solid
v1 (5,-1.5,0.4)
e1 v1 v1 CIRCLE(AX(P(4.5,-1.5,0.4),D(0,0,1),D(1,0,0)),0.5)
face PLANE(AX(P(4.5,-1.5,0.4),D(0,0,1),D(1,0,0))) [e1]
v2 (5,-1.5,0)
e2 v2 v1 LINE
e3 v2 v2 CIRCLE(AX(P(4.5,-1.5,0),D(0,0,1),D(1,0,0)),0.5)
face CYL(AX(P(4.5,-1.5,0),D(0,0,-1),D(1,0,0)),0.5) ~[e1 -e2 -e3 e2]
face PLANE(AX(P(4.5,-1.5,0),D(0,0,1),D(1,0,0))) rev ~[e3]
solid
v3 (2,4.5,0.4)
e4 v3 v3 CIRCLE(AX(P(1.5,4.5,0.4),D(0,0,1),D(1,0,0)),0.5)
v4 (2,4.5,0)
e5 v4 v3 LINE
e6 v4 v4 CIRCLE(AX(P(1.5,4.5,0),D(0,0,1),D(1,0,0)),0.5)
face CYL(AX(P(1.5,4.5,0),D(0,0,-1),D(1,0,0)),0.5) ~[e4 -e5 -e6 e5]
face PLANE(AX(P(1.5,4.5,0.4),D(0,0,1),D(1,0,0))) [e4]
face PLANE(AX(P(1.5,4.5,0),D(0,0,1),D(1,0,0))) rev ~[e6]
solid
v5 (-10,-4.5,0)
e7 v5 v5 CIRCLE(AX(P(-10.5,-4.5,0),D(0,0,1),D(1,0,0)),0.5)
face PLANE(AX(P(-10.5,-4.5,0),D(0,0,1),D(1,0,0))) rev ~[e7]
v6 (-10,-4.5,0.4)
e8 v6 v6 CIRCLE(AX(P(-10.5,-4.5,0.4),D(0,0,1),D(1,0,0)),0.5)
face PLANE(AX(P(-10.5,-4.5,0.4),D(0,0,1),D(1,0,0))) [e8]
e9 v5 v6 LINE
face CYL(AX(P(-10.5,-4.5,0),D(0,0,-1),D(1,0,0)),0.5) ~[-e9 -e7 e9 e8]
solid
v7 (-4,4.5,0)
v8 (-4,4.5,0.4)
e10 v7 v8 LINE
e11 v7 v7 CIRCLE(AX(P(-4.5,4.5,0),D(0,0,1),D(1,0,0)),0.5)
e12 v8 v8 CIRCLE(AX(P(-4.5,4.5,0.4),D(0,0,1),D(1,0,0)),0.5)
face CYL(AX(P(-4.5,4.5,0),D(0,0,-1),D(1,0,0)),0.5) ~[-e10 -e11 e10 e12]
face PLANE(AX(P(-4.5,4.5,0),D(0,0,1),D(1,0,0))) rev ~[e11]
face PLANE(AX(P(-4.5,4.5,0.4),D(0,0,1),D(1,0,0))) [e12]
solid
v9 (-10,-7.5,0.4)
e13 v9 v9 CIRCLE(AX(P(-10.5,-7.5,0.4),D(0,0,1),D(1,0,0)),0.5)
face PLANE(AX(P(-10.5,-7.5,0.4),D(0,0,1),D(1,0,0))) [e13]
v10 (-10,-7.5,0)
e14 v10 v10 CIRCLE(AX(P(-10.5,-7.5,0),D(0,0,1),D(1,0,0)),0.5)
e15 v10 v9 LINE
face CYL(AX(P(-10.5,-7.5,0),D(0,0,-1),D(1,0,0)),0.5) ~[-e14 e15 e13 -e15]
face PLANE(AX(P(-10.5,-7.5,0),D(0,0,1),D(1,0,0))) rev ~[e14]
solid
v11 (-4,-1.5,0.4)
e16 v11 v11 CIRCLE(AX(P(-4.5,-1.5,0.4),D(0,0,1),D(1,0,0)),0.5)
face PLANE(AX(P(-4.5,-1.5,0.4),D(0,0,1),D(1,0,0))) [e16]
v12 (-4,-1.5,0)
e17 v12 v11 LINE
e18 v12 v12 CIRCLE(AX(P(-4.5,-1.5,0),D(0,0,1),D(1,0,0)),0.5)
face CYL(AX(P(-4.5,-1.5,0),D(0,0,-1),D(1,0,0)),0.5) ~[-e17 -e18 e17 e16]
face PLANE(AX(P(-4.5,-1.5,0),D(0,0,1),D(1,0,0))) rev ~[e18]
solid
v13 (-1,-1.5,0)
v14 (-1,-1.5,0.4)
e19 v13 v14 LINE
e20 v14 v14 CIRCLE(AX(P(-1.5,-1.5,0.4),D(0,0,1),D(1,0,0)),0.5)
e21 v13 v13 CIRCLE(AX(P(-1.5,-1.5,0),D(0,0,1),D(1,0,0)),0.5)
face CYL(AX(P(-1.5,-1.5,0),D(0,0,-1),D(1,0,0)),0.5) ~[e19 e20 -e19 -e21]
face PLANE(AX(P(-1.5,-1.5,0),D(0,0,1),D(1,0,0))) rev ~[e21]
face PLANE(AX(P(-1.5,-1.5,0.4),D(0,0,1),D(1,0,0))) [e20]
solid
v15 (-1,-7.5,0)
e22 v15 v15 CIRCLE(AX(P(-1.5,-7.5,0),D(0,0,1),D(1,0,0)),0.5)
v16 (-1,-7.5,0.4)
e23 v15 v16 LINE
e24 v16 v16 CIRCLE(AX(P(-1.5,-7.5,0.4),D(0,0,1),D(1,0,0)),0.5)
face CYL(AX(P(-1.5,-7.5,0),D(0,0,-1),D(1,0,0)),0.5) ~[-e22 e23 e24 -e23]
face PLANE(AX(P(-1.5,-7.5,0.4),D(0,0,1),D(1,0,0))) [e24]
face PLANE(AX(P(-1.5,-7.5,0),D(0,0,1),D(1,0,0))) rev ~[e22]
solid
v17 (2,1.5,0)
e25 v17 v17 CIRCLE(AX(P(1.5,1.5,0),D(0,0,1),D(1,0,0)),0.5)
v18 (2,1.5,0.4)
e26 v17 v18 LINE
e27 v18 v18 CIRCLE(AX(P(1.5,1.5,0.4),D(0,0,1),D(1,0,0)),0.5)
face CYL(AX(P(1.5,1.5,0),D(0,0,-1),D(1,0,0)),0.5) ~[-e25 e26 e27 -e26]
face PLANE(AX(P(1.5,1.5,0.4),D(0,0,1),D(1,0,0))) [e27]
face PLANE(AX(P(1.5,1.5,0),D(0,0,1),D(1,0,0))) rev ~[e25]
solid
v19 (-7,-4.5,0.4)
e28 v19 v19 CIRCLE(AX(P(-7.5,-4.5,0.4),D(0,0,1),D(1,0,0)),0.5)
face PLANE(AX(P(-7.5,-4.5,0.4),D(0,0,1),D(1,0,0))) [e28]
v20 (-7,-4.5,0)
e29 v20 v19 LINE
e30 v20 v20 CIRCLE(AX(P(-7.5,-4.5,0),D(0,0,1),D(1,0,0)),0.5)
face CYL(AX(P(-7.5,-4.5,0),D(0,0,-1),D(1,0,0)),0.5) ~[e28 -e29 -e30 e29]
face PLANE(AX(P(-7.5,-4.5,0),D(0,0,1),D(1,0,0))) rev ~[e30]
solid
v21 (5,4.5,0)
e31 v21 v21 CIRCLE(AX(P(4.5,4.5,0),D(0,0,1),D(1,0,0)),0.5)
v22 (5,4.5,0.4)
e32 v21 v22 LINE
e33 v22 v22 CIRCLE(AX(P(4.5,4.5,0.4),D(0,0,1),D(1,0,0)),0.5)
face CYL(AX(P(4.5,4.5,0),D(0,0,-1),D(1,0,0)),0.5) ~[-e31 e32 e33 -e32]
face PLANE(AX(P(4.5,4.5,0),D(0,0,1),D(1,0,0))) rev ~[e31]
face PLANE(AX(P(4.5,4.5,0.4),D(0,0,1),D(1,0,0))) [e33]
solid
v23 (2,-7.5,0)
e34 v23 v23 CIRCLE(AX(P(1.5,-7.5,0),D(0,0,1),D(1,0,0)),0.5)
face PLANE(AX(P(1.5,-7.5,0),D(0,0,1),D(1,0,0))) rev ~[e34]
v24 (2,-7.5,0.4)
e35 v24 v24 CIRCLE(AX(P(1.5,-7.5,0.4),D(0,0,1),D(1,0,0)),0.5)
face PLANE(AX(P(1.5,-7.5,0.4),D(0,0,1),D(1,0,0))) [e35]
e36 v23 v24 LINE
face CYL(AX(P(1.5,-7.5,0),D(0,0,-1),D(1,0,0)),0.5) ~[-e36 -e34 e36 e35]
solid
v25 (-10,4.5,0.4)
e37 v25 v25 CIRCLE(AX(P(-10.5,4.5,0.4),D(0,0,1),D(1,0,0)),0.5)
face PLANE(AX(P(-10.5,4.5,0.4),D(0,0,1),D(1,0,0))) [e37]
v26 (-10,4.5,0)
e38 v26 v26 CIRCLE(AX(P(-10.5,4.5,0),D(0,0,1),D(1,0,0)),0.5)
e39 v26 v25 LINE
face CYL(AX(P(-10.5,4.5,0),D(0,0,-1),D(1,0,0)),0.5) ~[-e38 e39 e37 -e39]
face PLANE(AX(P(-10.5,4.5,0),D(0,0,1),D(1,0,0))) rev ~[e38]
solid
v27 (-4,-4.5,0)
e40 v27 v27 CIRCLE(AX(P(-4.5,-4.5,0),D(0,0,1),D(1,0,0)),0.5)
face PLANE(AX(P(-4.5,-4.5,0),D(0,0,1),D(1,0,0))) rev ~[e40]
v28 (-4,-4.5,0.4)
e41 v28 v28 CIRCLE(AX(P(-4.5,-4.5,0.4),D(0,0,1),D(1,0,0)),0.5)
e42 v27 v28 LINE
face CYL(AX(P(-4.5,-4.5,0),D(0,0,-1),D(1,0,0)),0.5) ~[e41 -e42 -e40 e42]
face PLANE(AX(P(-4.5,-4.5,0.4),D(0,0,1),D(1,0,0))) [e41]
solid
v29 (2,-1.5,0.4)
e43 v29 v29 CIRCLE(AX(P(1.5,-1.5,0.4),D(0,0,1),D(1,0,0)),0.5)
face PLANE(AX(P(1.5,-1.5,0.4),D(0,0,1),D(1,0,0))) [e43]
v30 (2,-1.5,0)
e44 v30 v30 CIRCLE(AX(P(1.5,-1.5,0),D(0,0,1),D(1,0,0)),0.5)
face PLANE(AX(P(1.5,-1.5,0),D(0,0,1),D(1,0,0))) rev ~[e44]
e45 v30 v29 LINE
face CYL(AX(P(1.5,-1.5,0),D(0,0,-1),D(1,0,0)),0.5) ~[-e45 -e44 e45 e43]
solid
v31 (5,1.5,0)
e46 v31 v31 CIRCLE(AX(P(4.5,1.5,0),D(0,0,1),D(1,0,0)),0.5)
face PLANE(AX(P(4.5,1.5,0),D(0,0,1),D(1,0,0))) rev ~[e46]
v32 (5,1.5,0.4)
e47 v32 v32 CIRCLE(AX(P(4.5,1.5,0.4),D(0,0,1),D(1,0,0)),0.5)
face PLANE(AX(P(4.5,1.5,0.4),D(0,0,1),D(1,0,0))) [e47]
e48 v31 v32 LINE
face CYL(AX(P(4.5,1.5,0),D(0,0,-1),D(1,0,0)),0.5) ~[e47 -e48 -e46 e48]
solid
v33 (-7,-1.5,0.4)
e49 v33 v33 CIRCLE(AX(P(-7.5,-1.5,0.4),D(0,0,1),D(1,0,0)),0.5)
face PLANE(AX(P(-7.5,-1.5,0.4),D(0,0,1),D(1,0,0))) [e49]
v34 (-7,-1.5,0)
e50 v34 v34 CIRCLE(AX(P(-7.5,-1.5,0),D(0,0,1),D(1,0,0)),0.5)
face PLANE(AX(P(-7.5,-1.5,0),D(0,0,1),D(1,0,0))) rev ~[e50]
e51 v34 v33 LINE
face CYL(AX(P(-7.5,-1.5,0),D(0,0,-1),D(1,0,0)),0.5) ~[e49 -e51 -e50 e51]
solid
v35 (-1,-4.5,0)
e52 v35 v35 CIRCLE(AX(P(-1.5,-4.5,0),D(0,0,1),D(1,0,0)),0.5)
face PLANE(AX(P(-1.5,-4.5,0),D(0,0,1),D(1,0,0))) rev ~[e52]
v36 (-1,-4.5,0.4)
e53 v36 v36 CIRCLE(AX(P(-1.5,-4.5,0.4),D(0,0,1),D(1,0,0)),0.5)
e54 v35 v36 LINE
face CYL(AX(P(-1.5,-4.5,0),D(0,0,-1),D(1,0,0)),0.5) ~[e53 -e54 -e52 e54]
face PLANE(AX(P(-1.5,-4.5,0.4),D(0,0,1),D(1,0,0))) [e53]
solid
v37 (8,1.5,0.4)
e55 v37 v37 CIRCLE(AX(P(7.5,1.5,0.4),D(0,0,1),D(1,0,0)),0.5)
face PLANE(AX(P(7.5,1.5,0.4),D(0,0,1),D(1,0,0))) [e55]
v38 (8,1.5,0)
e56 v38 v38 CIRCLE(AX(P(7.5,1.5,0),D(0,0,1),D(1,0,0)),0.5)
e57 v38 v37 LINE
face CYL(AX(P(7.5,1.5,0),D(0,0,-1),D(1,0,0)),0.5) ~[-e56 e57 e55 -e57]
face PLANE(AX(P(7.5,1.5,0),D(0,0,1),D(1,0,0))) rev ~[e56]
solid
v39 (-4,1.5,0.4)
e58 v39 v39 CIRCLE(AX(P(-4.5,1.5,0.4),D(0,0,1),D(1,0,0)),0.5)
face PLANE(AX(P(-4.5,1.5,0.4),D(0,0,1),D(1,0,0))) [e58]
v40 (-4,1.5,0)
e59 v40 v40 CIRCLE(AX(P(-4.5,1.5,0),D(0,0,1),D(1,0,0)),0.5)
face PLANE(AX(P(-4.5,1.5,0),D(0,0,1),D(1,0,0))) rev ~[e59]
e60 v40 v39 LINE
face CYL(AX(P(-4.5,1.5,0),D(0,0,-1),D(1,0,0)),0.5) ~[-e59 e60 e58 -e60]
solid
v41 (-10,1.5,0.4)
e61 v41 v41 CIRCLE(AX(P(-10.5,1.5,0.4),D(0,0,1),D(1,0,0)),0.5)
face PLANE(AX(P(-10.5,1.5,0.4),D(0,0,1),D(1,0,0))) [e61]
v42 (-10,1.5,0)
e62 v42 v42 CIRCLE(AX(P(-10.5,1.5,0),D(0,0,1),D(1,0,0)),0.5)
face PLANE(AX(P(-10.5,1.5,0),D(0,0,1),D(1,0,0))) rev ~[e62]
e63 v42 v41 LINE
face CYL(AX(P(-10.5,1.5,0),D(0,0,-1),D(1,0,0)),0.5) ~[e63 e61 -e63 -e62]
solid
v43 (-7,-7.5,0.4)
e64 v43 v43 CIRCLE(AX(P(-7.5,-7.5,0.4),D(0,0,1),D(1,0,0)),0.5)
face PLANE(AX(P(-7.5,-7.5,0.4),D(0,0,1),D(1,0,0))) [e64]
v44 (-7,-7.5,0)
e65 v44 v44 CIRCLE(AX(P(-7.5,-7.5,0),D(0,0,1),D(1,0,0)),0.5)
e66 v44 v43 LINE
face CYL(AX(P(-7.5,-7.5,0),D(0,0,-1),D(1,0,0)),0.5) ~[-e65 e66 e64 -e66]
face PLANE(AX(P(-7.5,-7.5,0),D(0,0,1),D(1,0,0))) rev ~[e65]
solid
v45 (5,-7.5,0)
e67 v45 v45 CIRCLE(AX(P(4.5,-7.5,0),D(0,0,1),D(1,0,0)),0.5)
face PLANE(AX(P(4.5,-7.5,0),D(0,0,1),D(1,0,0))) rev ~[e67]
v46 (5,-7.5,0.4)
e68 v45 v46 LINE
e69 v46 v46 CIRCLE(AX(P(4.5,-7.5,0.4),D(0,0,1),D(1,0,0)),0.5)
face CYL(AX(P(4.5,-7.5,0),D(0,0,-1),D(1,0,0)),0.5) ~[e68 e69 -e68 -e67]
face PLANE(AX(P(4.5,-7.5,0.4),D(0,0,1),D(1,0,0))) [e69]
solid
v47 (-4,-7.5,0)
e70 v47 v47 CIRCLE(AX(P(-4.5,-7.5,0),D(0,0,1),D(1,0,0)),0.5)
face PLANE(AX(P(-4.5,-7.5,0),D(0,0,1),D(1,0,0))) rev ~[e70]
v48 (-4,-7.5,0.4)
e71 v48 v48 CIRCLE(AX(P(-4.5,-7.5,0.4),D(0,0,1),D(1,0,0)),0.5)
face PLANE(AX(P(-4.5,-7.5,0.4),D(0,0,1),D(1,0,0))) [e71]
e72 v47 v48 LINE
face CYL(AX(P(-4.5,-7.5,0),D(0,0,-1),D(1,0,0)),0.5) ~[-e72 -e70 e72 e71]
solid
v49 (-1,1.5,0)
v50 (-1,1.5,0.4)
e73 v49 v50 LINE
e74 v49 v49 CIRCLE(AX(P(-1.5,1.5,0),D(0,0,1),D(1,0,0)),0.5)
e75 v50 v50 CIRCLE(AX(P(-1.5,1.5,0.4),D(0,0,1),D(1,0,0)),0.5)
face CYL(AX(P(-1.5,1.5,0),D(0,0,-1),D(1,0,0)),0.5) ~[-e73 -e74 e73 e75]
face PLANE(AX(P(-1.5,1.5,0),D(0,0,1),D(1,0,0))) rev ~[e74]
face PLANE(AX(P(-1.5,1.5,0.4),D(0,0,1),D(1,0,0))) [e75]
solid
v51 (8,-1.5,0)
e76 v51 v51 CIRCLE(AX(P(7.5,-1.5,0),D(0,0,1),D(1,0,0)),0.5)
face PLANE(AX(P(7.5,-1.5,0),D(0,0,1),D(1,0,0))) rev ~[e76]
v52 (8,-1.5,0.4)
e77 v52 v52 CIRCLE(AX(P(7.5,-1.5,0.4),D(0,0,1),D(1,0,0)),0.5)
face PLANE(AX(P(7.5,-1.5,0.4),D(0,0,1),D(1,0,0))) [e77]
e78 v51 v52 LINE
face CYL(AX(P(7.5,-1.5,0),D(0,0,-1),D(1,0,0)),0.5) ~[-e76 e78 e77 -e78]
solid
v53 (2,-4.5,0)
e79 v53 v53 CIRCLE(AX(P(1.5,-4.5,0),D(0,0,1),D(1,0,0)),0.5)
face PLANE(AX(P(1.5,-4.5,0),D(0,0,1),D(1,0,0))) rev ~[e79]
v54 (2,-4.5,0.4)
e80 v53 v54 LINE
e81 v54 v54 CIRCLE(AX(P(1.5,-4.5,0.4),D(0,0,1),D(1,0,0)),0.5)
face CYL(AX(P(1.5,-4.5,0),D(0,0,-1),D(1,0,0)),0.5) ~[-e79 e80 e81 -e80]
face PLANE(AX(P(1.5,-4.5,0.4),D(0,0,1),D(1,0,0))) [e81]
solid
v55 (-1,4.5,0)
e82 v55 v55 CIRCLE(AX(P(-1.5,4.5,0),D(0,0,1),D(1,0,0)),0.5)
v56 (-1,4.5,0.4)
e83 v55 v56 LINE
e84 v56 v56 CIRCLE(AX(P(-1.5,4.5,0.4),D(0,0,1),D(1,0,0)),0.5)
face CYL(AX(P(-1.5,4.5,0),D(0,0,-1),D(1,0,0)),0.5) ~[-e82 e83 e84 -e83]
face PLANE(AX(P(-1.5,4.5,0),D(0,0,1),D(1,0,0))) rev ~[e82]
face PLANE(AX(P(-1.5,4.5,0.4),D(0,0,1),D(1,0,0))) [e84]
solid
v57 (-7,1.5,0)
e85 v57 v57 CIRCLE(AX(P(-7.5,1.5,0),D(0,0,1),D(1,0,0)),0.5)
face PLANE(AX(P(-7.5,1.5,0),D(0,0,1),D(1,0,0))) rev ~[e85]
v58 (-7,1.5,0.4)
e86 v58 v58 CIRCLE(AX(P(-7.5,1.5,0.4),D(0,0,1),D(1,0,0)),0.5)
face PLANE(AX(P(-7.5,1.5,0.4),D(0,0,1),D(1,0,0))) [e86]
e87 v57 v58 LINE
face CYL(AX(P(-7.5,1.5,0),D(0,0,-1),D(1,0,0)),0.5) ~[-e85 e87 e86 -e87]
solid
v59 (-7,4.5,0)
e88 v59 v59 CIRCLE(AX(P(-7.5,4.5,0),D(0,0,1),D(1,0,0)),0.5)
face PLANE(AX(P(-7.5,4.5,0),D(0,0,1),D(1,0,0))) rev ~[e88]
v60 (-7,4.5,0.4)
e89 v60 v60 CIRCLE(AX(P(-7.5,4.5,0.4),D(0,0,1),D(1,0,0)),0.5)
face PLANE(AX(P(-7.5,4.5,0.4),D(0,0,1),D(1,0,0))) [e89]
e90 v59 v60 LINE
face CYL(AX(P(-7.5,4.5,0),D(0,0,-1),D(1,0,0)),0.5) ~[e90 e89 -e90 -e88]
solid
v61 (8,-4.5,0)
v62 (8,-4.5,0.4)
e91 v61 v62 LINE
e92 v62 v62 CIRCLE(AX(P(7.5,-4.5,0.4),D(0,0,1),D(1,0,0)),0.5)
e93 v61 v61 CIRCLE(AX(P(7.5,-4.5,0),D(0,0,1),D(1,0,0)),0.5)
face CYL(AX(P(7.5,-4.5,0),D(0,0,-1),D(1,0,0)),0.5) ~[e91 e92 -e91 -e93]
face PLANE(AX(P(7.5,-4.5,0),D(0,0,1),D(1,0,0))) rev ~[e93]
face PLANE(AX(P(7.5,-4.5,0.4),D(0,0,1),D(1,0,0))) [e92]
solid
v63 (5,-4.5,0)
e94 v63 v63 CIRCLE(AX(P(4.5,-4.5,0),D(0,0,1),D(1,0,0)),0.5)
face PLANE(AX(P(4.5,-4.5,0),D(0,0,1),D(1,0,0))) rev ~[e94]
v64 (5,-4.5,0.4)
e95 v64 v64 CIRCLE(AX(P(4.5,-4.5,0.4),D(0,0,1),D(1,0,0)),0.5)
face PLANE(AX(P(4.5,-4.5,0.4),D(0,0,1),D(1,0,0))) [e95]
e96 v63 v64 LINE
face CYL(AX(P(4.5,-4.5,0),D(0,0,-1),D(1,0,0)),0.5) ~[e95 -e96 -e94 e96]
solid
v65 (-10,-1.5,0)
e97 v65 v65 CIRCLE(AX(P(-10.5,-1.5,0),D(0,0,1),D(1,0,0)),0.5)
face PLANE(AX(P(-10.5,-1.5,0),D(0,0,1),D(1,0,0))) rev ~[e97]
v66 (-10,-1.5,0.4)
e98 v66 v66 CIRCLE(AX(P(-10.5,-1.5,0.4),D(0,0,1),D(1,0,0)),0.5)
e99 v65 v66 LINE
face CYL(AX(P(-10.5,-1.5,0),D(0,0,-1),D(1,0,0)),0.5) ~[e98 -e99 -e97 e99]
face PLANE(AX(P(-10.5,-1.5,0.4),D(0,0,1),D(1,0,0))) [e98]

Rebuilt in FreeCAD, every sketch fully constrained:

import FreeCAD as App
import Part
import Sketcher

doc = App.newDocument("Part")
body = doc.addObject("PartDesign::Body", "Body")

sketch1 = body.newObject("Sketcher::SketchObject", "Sketch")
sketch1.AttachmentSupport = (doc.getObject("XY_Plane"), [""])
sketch1.MapMode = "FlatFace"
sketch1.addGeometry(Part.Circle(App.Vector(-4.5, 1.5, 0), App.Vector(0, 0, 1), 0.5), False)
sketch1.addConstraint([
    Sketcher.Constraint("Diameter", 0, 1.0),
    Sketcher.Constraint("DistanceX", 0, 3, -1, 1, 4.5),
    Sketcher.Constraint("DistanceY", -1, 1, 0, 3, 1.5),
])
pad1 = body.newObject("PartDesign::Pad", "Pad")
pad1.Profile = sketch1
pad1.Length = 0.4
body2 = doc.addObject("PartDesign::Body", "Body001")

sketch2 = body2.newObject("Sketcher::SketchObject", "Sketch001")
sketch2.AttachmentSupport = (doc.getObject("XY_Plane001"), [""])
sketch2.MapMode = "FlatFace"
sketch2.addGeometry(Part.Circle(App.Vector(-1.5, 1.5, 0), App.Vector(0, 0, 1), 0.5), False)
sketch2.addConstraint([
    Sketcher.Constraint("Diameter", 0, 1.0),
    Sketcher.Constraint("DistanceX", 0, 3, -1, 1, 1.5),
    Sketcher.Constraint("DistanceY", -1, 1, 0, 3, 1.5),
])
pad2 = body2.newObject("PartDesign::Pad", "Pad001")
pad2.Profile = sketch2
pad2.Length = 0.4
body3 = doc.addObject("PartDesign::Body", "Body002")

sketch3 = body3.newObject("Sketcher::SketchObject", "Sketch002")
sketch3.AttachmentSupport = (doc.getObject("XY_Plane002"), [""])
sketch3.MapMode = "FlatFace"
sketch3.addGeometry(Part.Circle(App.Vector(1.5, 1.5, 0), App.Vector(0, 0, 1), 0.5), False)
sketch3.addConstraint([
    Sketcher.Constraint("Diameter", 0, 1.0),
    Sketcher.Constraint("DistanceX", -1, 1, 0, 3, 1.5),
    Sketcher.Constraint("DistanceY", -1, 1, 0, 3, 1.5),
])
pad3 = body3.newObject("PartDesign::Pad", "Pad002")
pad3.Profile = sketch3
pad3.Length = 0.4
body4 = doc.addObject("PartDesign::Body", "Body003")

sketch4 = body4.newObject("Sketcher::SketchObject", "Sketch003")
sketch4.AttachmentSupport = (doc.getObject("XY_Plane003"), [""])
sketch4.MapMode = "FlatFace"
sketch4.addGeometry(Part.Circle(App.Vector(4.5, 1.5, 0), App.Vector(0, 0, 1), 0.5), False)
sketch4.addConstraint([
    Sketcher.Constraint("Diameter", 0, 1.0),
    Sketcher.Constraint("DistanceX", -1, 1, 0, 3, 4.5),
    Sketcher.Constraint("DistanceY", -1, 1, 0, 3, 1.5),
])
pad4 = body4.newObject("PartDesign::Pad", "Pad003")
pad4.Profile = sketch4
pad4.Length = 0.4
body5 = doc.addObject("PartDesign::Body", "Body004")

sketch5 = body5.newObject("Sketcher::SketchObject", "Sketch004")
sketch5.AttachmentSupport = (doc.getObject("XY_Plane004"), [""])
sketch5.MapMode = "FlatFace"
sketch5.addGeometry(Part.Circle(App.Vector(7.5, 1.5, 0), App.Vector(0, 0, 1), 0.5), False)
sketch5.addConstraint([
    Sketcher.Constraint("Diameter", 0, 1.0),
    Sketcher.Constraint("DistanceX", -1, 1, 0, 3, 7.5),
    Sketcher.Constraint("DistanceY", -1, 1, 0, 3, 1.5),
])
pad5 = body5.newObject("PartDesign::Pad", "Pad004")
pad5.Profile = sketch5
pad5.Length = 0.4
body6 = doc.addObject("PartDesign::Body", "Body005")

sketch6 = body6.newObject("Sketcher::SketchObject", "Sketch005")
sketch6.AttachmentSupport = (doc.getObject("XY_Plane005"), [""])
sketch6.MapMode = "FlatFace"
sketch6.addGeometry(Part.Circle(App.Vector(10.5, 1.5, 0), App.Vector(0, 0, 1), 0.5), False)
sketch6.addConstraint([
    Sketcher.Constraint("Diameter", 0, 1.0),
    Sketcher.Constraint("DistanceX", -1, 1, 0, 3, 10.5),
    Sketcher.Constraint("DistanceY", -1, 1, 0, 3, 1.5),
])
pad6 = body6.newObject("PartDesign::Pad", "Pad005")
pad6.Profile = sketch6
pad6.Length = 0.4
body7 = doc.addObject("PartDesign::Body", "Body006")

sketch7 = body7.newObject("Sketcher::SketchObject", "Sketch006")
sketch7.AttachmentSupport = (doc.getObject("XY_Plane006"), [""])
sketch7.MapMode = "FlatFace"
sketch7.addGeometry(Part.Circle(App.Vector(10.5, -1.5, 0), App.Vector(0, 0, 1), 0.5), False)
sketch7.addConstraint([
    Sketcher.Constraint("Diameter", 0, 1.0),
    Sketcher.Constraint("DistanceX", -1, 1, 0, 3, 10.5),
    Sketcher.Constraint("DistanceY", 0, 3, -1, 1, 1.5),
])
pad7 = body7.newObject("PartDesign::Pad", "Pad006")
pad7.Profile = sketch7
pad7.Length = 0.4
body8 = doc.addObject("PartDesign::Body", "Body007")

sketch8 = body8.newObject("Sketcher::SketchObject", "Sketch007")
sketch8.AttachmentSupport = (doc.getObject("XY_Plane007"), [""])
sketch8.MapMode = "FlatFace"
sketch8.addGeometry(Part.Circle(App.Vector(7.5, -1.5, 0), App.Vector(0, 0, 1), 0.5), False)
sketch8.addConstraint([
    Sketcher.Constraint("Diameter", 0, 1.0),
    Sketcher.Constraint("DistanceX", -1, 1, 0, 3, 7.5),
    Sketcher.Constraint("DistanceY", 0, 3, -1, 1, 1.5),
])
pad8 = body8.newObject("PartDesign::Pad", "Pad007")
pad8.Profile = sketch8
pad8.Length = 0.4
body9 = doc.addObject("PartDesign::Body", "Body008")

sketch9 = body9.newObject("Sketcher::SketchObject", "Sketch008")
sketch9.AttachmentSupport = (doc.getObject("XY_Plane008"), [""])
sketch9.MapMode = "FlatFace"
sketch9.addGeometry(Part.Circle(App.Vector(-10.5, 7.5, 0), App.Vector(0, 0, 1), 0.5), False)
sketch9.addConstraint([
    Sketcher.Constraint("Diameter", 0, 1.0),
    Sketcher.Constraint("DistanceX", 0, 3, -1, 1, 10.5),
    Sketcher.Constraint("DistanceY", -1, 1, 0, 3, 7.5),
])
pad9 = body9.newObject("PartDesign::Pad", "Pad008")
pad9.Profile = sketch9
pad9.Length = 0.4
body10 = doc.addObject("PartDesign::Body", "Body009")

sketch10 = body10.newObject("Sketcher::SketchObject", "Sketch009")
sketch10.AttachmentSupport = (doc.getObject("XY_Plane009"), [""])
sketch10.MapMode = "FlatFace"
sketch10.addGeometry(Part.Circle(App.Vector(-1.5, 7.5, 0), App.Vector(0, 0, 1), 0.5), False)
sketch10.addConstraint([
    Sketcher.Constraint("Diameter", 0, 1.0),
    Sketcher.Constraint("DistanceX", 0, 3, -1, 1, 1.5),
    Sketcher.Constraint("DistanceY", -1, 1, 0, 3, 7.5),
])
pad10 = body10.newObject("PartDesign::Pad", "Pad009")
pad10.Profile = sketch10
pad10.Length = 0.4
body11 = doc.addObject("PartDesign::Body", "Body010")

sketch11 = body11.newObject("Sketcher::SketchObject", "Sketch010")
sketch11.AttachmentSupport = (doc.getObject("XY_Plane010"), [""])
sketch11.MapMode = "FlatFace"
sketch11.addGeometry(Part.Circle(App.Vector(1.5, 7.5, 0), App.Vector(0, 0, 1), 0.5), False)
sketch11.addConstraint([
    Sketcher.Constraint("Diameter", 0, 1.0),
    Sketcher.Constraint("DistanceX", -1, 1, 0, 3, 1.5),
    Sketcher.Constraint("DistanceY", -1, 1, 0, 3, 7.5),
])
pad11 = body11.newObject("PartDesign::Pad", "Pad010")
pad11.Profile = sketch11
pad11.Length = 0.4
body12 = doc.addObject("PartDesign::Body", "Body011")

sketch12 = body12.newObject("Sketcher::SketchObject", "Sketch011")
sketch12.AttachmentSupport = (doc.getObject("XY_Plane011"), [""])
sketch12.MapMode = "FlatFace"
sketch12.addGeometry(Part.Circle(App.Vector(4.5, 7.5, 0), App.Vector(0, 0, 1), 0.5), False)
sketch12.addConstraint([
    Sketcher.Constraint("Diameter", 0, 1.0),
    Sketcher.Constraint("DistanceX", -1, 1, 0, 3, 4.5),
    Sketcher.Constraint("DistanceY", -1, 1, 0, 3, 7.5),
])
pad12 = body12.newObject("PartDesign::Pad", "Pad011")
pad12.Profile = sketch12
pad12.Length = 0.4
body13 = doc.addObject("PartDesign::Body", "Body012")

sketch13 = body13.newObject("Sketcher::SketchObject", "Sketch012")
sketch13.AttachmentSupport = (doc.getObject("XY_Plane012"), [""])
sketch13.MapMode = "FlatFace"
sketch13.addGeometry(Part.Circle(App.Vector(-10.5, 1.5, 0), App.Vector(0, 0, 1), 0.5), False)
sketch13.addConstraint([
    Sketcher.Constraint("Diameter", 0, 1.0),
    Sketcher.Constraint("DistanceX", 0, 3, -1, 1, 10.5),
    Sketcher.Constraint("DistanceY", -1, 1, 0, 3, 1.5),
])
pad13 = body13.newObject("PartDesign::Pad", "Pad012")
pad13.Profile = sketch13
pad13.Length = 0.4
body14 = doc.addObject("PartDesign::Body", "Body013")

sketch14 = body14.newObject("Sketcher::SketchObject", "Sketch013")
sketch14.AttachmentSupport = (doc.getObject("XY_Plane013"), [""])
sketch14.MapMode = "FlatFace"
sketch14.addGeometry(Part.Circle(App.Vector(-10.5, 4.5, 0), App.Vector(0, 0, 1), 0.5), False)
sketch14.addConstraint([
    Sketcher.Constraint("Diameter", 0, 1.0),
    Sketcher.Constraint("DistanceX", 0, 3, -1, 1, 10.5),
    Sketcher.Constraint("DistanceY", -1, 1, 0, 3, 4.5),
])
pad14 = body14.newObject("PartDesign::Pad", "Pad013")
pad14.Profile = sketch14
pad14.Length = 0.4
body15 = doc.addObject("PartDesign::Body", "Body014")

sketch15 = body15.newObject("Sketcher::SketchObject", "Sketch014")
sketch15.AttachmentSupport = (doc.getObject("XY_Plane014"), [""])
sketch15.MapMode = "FlatFace"
sketch15.addGeometry(Part.Circle(App.Vector(-10.5, -1.5, 0), App.Vector(0, 0, 1), 0.5), False)
sketch15.addConstraint([
    Sketcher.Constraint("Diameter", 0, 1.0),
    Sketcher.Constraint("DistanceX", 0, 3, -1, 1, 10.5),
    Sketcher.Constraint("DistanceY", 0, 3, -1, 1, 1.5),
])
pad15 = body15.newObject("PartDesign::Pad", "Pad014")
pad15.Profile = sketch15
pad15.Length = 0.4
body16 = doc.addObject("PartDesign::Body", "Body015")

sketch16 = body16.newObject("Sketcher::SketchObject", "Sketch015")
sketch16.AttachmentSupport = (doc.getObject("XY_Plane015"), [""])
sketch16.MapMode = "FlatFace"
sketch16.addGeometry(Part.Circle(App.Vector(-10.5, -4.5, 0), App.Vector(0, 0, 1), 0.5), False)
sketch16.addConstraint([
    Sketcher.Constraint("Diameter", 0, 1.0),
    Sketcher.Constraint("DistanceX", 0, 3, -1, 1, 10.5),
    Sketcher.Constraint("DistanceY", 0, 3, -1, 1, 4.5),
])
pad16 = body16.newObject("PartDesign::Pad", "Pad015")
pad16.Profile = sketch16
pad16.Length = 0.4
body17 = doc.addObject("PartDesign::Body", "Body016")

sketch17 = body17.newObject("Sketcher::SketchObject", "Sketch016")
sketch17.AttachmentSupport = (doc.getObject("XY_Plane016"), [""])
sketch17.MapMode = "FlatFace"
sketch17.addGeometry(Part.Circle(App.Vector(-10.5, -7.5, 0), App.Vector(0, 0, 1), 0.5), False)
sketch17.addConstraint([
    Sketcher.Constraint("Diameter", 0, 1.0),
    Sketcher.Constraint("DistanceX", 0, 3, -1, 1, 10.5),
    Sketcher.Constraint("DistanceY", 0, 3, -1, 1, 7.5),
])
pad17 = body17.newObject("PartDesign::Pad", "Pad016")
pad17.Profile = sketch17
pad17.Length = 0.4
body18 = doc.addObject("PartDesign::Body", "Body017")

sketch18 = body18.newObject("Sketcher::SketchObject", "Sketch017")
sketch18.AttachmentSupport = (doc.getObject("XY_Plane017"), [""])
sketch18.MapMode = "FlatFace"
sketch18.addGeometry(Part.Circle(App.Vector(-7.5, -7.5, 0), App.Vector(0, 0, 1), 0.5), False)
sketch18.addConstraint([
    Sketcher.Constraint("Diameter", 0, 1.0),
    Sketcher.Constraint("DistanceX", 0, 3, -1, 1, 7.5),
    Sketcher.Constraint("DistanceY", 0, 3, -1, 1, 7.5),
])
pad18 = body18.newObject("PartDesign::Pad", "Pad017")
pad18.Profile = sketch18
pad18.Length = 0.4
body19 = doc.addObject("PartDesign::Body", "Body018")

sketch19 = body19.newObject("Sketcher::SketchObject", "Sketch018")
sketch19.AttachmentSupport = (doc.getObject("XY_Plane018"), [""])
sketch19.MapMode = "FlatFace"
sketch19.addGeometry(Part.Circle(App.Vector(-7.5, -4.5, 0), App.Vector(0, 0, 1), 0.5), False)
sketch19.addConstraint([
    Sketcher.Constraint("Diameter", 0, 1.0),
    Sketcher.Constraint("DistanceX", 0, 3, -1, 1, 7.5),
    Sketcher.Constraint("DistanceY", 0, 3, -1, 1, 4.5),
])
pad19 = body19.newObject("PartDesign::Pad", "Pad018")
pad19.Profile = sketch19
pad19.Length = 0.4
body20 = doc.addObject("PartDesign::Body", "Body019")

sketch20 = body20.newObject("Sketcher::SketchObject", "Sketch019")
sketch20.AttachmentSupport = (doc.getObject("XY_Plane019"), [""])
sketch20.MapMode = "FlatFace"
sketch20.addGeometry(Part.Circle(App.Vector(-7.5, -1.5, 0), App.Vector(0, 0, 1), 0.5), False)
sketch20.addConstraint([
    Sketcher.Constraint("Diameter", 0, 1.0),
    Sketcher.Constraint("DistanceX", 0, 3, -1, 1, 7.5),
    Sketcher.Constraint("DistanceY", 0, 3, -1, 1, 1.5),
])
pad20 = body20.newObject("PartDesign::Pad", "Pad019")
pad20.Profile = sketch20
pad20.Length = 0.4
body21 = doc.addObject("PartDesign::Body", "Body020")

sketch21 = body21.newObject("Sketcher::SketchObject", "Sketch020")
sketch21.AttachmentSupport = (doc.getObject("XY_Plane020"), [""])
sketch21.MapMode = "FlatFace"
sketch21.addGeometry(Part.Circle(App.Vector(-7.5, 1.5, 0), App.Vector(0, 0, 1), 0.5), False)
sketch21.addConstraint([
    Sketcher.Constraint("Diameter", 0, 1.0),
    Sketcher.Constraint("DistanceX", 0, 3, -1, 1, 7.5),
    Sketcher.Constraint("DistanceY", -1, 1, 0, 3, 1.5),
])
pad21 = body21.newObject("PartDesign::Pad", "Pad020")
pad21.Profile = sketch21
pad21.Length = 0.4
body22 = doc.addObject("PartDesign::Body", "Body021")

sketch22 = body22.newObject("Sketcher::SketchObject", "Sketch021")
sketch22.AttachmentSupport = (doc.getObject("XY_Plane021"), [""])
sketch22.MapMode = "FlatFace"
sketch22.addGeometry(Part.Circle(App.Vector(-7.5, 4.5, 0), App.Vector(0, 0, 1), 0.5), False)
sketch22.addConstraint([
    Sketcher.Constraint("Diameter", 0, 1.0),
    Sketcher.Constraint("DistanceX", 0, 3, -1, 1, 7.5),
    Sketcher.Constraint("DistanceY", -1, 1, 0, 3, 4.5),
])
pad22 = body22.newObject("PartDesign::Pad", "Pad021")
pad22.Profile = sketch22
pad22.Length = 0.4
body23 = doc.addObject("PartDesign::Body", "Body022")

sketch23 = body23.newObject("Sketcher::SketchObject", "Sketch022")
sketch23.AttachmentSupport = (doc.getObject("XY_Plane022"), [""])
sketch23.MapMode = "FlatFace"
sketch23.addGeometry(Part.Circle(App.Vector(-4.5, 4.5, 0), App.Vector(0, 0, 1), 0.5), False)
sketch23.addConstraint([
    Sketcher.Constraint("Diameter", 0, 1.0),
    Sketcher.Constraint("DistanceX", 0, 3, -1, 1, 4.5),
    Sketcher.Constraint("DistanceY", -1, 1, 0, 3, 4.5),
])
pad23 = body23.newObject("PartDesign::Pad", "Pad022")
pad23.Profile = sketch23
pad23.Length = 0.4
body24 = doc.addObject("PartDesign::Body", "Body023")

sketch24 = body24.newObject("Sketcher::SketchObject", "Sketch023")
sketch24.AttachmentSupport = (doc.getObject("XY_Plane023"), [""])
sketch24.MapMode = "FlatFace"
sketch24.addGeometry(Part.Circle(App.Vector(-1.5, 4.5, 0), App.Vector(0, 0, 1), 0.5), False)
sketch24.addConstraint([
    Sketcher.Constraint("Diameter", 0, 1.0),
    Sketcher.Constraint("DistanceX", 0, 3, -1, 1, 1.5),
    Sketcher.Constraint("DistanceY", -1, 1, 0, 3, 4.5),
])
pad24 = body24.newObject("PartDesign::Pad", "Pad023")
pad24.Profile = sketch24
pad24.Length = 0.4
body25 = doc.addObject("PartDesign::Body", "Body024")

sketch25 = body25.newObject("Sketcher::SketchObject", "Sketch024")
sketch25.AttachmentSupport = (doc.getObject("XY_Plane024"), [""])
sketch25.MapMode = "FlatFace"
sketch25.addGeometry(Part.Circle(App.Vector(1.5, 4.5, 0), App.Vector(0, 0, 1), 0.5), False)
sketch25.addConstraint([
    Sketcher.Constraint("Diameter", 0, 1.0),
    Sketcher.Constraint("DistanceX", -1, 1, 0, 3, 1.5),
    Sketcher.Constraint("DistanceY", -1, 1, 0, 3, 4.5),
])
pad25 = body25.newObject("PartDesign::Pad", "Pad024")
pad25.Profile = sketch25
pad25.Length = 0.4
body26 = doc.addObject("PartDesign::Body", "Body025")

sketch26 = body26.newObject("Sketcher::SketchObject", "Sketch025")
sketch26.AttachmentSupport = (doc.getObject("XY_Plane025"), [""])
sketch26.MapMode = "FlatFace"
sketch26.addGeometry(Part.Circle(App.Vector(7.5, 4.5, 0), App.Vector(0, 0, 1), 0.5), False)
sketch26.addConstraint([
    Sketcher.Constraint("Diameter", 0, 1.0),
    Sketcher.Constraint("DistanceX", -1, 1, 0, 3, 7.5),
    Sketcher.Constraint("DistanceY", -1, 1, 0, 3, 4.5),
])
pad26 = body26.newObject("PartDesign::Pad", "Pad025")
pad26.Profile = sketch26
pad26.Length = 0.4
body27 = doc.addObject("PartDesign::Body", "Body026")

sketch27 = body27.newObject("Sketcher::SketchObject", "Sketch026")
sketch27.AttachmentSupport = (doc.getObject("XY_Plane026"), [""])
sketch27.MapMode = "FlatFace"
sketch27.addGeometry(Part.Circle(App.Vector(1.5, -1.5, 0), App.Vector(0, 0, 1), 0.5), False)
sketch27.addConstraint([
    Sketcher.Constraint("Diameter", 0, 1.0),
    Sketcher.Constraint("DistanceX", -1, 1, 0, 3, 1.5),
    Sketcher.Constraint("DistanceY", 0, 3, -1, 1, 1.5),
])
pad27 = body27.newObject("PartDesign::Pad", "Pad026")
pad27.Profile = sketch27
pad27.Length = 0.4
body28 = doc.addObject("PartDesign::Body", "Body027")

sketch28 = body28.newObject("Sketcher::SketchObject", "Sketch027")
sketch28.AttachmentSupport = (doc.getObject("XY_Plane027"), [""])
sketch28.MapMode = "FlatFace"
sketch28.addGeometry(Part.Circle(App.Vector(-1.5, -1.5, 0), App.Vector(0, 0, 1), 0.5), False)
sketch28.addConstraint([
    Sketcher.Constraint("Diameter", 0, 1.0),
    Sketcher.Constraint("DistanceX", 0, 3, -1, 1, 1.5),
    Sketcher.Constraint("DistanceY", 0, 3, -1, 1, 1.5),
])
pad28 = body28.newObject("PartDesign::Pad", "Pad027")
pad28.Profile = sketch28
pad28.Length = 0.4
body29 = doc.addObject("PartDesign::Body", "Body028")

sketch29 = body29.newObject("Sketcher::SketchObject", "Sketch028")
sketch29.AttachmentSupport = (doc.getObject("XY_Plane028"), [""])
sketch29.MapMode = "FlatFace"
sketch29.addGeometry(Part.Circle(App.Vector(-4.5, -1.5, 0), App.Vector(0, 0, 1), 0.5), False)
sketch29.addConstraint([
    Sketcher.Constraint("Diameter", 0, 1.0),
    Sketcher.Constraint("DistanceX", 0, 3, -1, 1, 4.5),
    Sketcher.Constraint("DistanceY", 0, 3, -1, 1, 1.5),
])
pad29 = body29.newObject("PartDesign::Pad", "Pad028")
pad29.Profile = sketch29
pad29.Length = 0.4
body30 = doc.addObject("PartDesign::Body", "Body029")

sketch30 = body30.newObject("Sketcher::SketchObject", "Sketch029")
sketch30.AttachmentSupport = (doc.getObject("XY_Plane029"), [""])
sketch30.MapMode = "FlatFace"
sketch30.addGeometry(Part.Circle(App.Vector(-4.5, -4.5, 0), App.Vector(0, 0, 1), 0.5), False)
sketch30.addConstraint([
    Sketcher.Constraint("Diameter", 0, 1.0),
    Sketcher.Constraint("DistanceX", 0, 3, -1, 1, 4.5),
    Sketcher.Constraint("DistanceY", 0, 3, -1, 1, 4.5),
])
pad30 = body30.newObject("PartDesign::Pad", "Pad029")
pad30.Profile = sketch30
pad30.Length = 0.4
body31 = doc.addObject("PartDesign::Body", "Body030")

sketch31 = body31.newObject("Sketcher::SketchObject", "Sketch030")
sketch31.AttachmentSupport = (doc.getObject("XY_Plane030"), [""])
sketch31.MapMode = "FlatFace"
sketch31.addGeometry(Part.Circle(App.Vector(-1.5, -4.5, 0), App.Vector(0, 0, 1), 0.5), False)
sketch31.addConstraint([
    Sketcher.Constraint("Diameter", 0, 1.0),
    Sketcher.Constraint("DistanceX", 0, 3, -1, 1, 1.5),
    Sketcher.Constraint("DistanceY", 0, 3, -1, 1, 4.5),
])
pad31 = body31.newObject("PartDesign::Pad", "Pad030")
pad31.Profile = sketch31
pad31.Length = 0.4
body32 = doc.addObject("PartDesign::Body", "Body031")

sketch32 = body32.newObject("Sketcher::SketchObject", "Sketch031")
sketch32.AttachmentSupport = (doc.getObject("XY_Plane031"), [""])
sketch32.MapMode = "FlatFace"
sketch32.addGeometry(Part.Circle(App.Vector(-4.5, -7.5, 0), App.Vector(0, 0, 1), 0.5), False)
sketch32.addConstraint([
    Sketcher.Constraint("Diameter", 0, 1.0),
    Sketcher.Constraint("DistanceX", 0, 3, -1, 1, 4.5),
    Sketcher.Constraint("DistanceY", 0, 3, -1, 1, 7.5),
])
pad32 = body32.newObject("PartDesign::Pad", "Pad031")
pad32.Profile = sketch32
pad32.Length = 0.4
body33 = doc.addObject("PartDesign::Body", "Body032")

sketch33 = body33.newObject("Sketcher::SketchObject", "Sketch032")
sketch33.AttachmentSupport = (doc.getObject("XY_Plane032"), [""])
sketch33.MapMode = "FlatFace"
sketch33.addGeometry(Part.Circle(App.Vector(-1.5, -7.5, 0), App.Vector(0, 0, 1), 0.5), False)
sketch33.addConstraint([
    Sketcher.Constraint("Diameter", 0, 1.0),
    Sketcher.Constraint("DistanceX", 0, 3, -1, 1, 1.5),
    Sketcher.Constraint("DistanceY", 0, 3, -1, 1, 7.5),
])
pad33 = body33.newObject("PartDesign::Pad", "Pad032")
pad33.Profile = sketch33
pad33.Length = 0.4
body34 = doc.addObject("PartDesign::Body", "Body033")

sketch34 = body34.newObject("Sketcher::SketchObject", "Sketch033")
sketch34.AttachmentSupport = (doc.getObject("XY_Plane033"), [""])
sketch34.MapMode = "FlatFace"
sketch34.addGeometry(Part.Circle(App.Vector(1.5, -7.5, 0), App.Vector(0, 0, 1), 0.5), False)
sketch34.addConstraint([
    Sketcher.Constraint("Diameter", 0, 1.0),
    Sketcher.Constraint("DistanceX", -1, 1, 0, 3, 1.5),
    Sketcher.Constraint("DistanceY", 0, 3, -1, 1, 7.5),
])
pad34 = body34.newObject("PartDesign::Pad", "Pad033")
pad34.Profile = sketch34
pad34.Length = 0.4
body35 = doc.addObject("PartDesign::Body", "Body034")

sketch35 = body35.newObject("Sketcher::SketchObject", "Sketch034")
sketch35.AttachmentSupport = (doc.getObject("XY_Plane034"), [""])
sketch35.MapMode = "FlatFace"
sketch35.addGeometry(Part.Circle(App.Vector(4.5, -7.5, 0), App.Vector(0, 0, 1), 0.5), False)
sketch35.addConstraint([
    Sketcher.Constraint("Diameter", 0, 1.0),
    Sketcher.Constraint("DistanceX", -1, 1, 0, 3, 4.5),
    Sketcher.Constraint("DistanceY", 0, 3, -1, 1, 7.5),
])
pad35 = body35.newObject("PartDesign::Pad", "Pad034")
pad35.Profile = sketch35
pad35.Length = 0.4
body36 = doc.addObject("PartDesign::Body", "Body035")

sketch36 = body36.newObject("Sketcher::SketchObject", "Sketch035")
sketch36.AttachmentSupport = (doc.getObject("XY_Plane035"), [""])
sketch36.MapMode = "FlatFace"
sketch36.addGeometry(Part.Circle(App.Vector(4.5, -4.5, 0), App.Vector(0, 0, 1), 0.5), False)
sketch36.addConstraint([
    Sketcher.Constraint("Diameter", 0, 1.0),
    Sketcher.Constraint("DistanceX", -1, 1, 0, 3, 4.5),
    Sketcher.Constraint("DistanceY", 0, 3, -1, 1, 4.5),
])
pad36 = body36.newObject("PartDesign::Pad", "Pad035")
pad36.Profile = sketch36
pad36.Length = 0.4
body37 = doc.addObject("PartDesign::Body", "Body036")

sketch37 = body37.newObject("Sketcher::SketchObject", "Sketch036")
sketch37.AttachmentSupport = (doc.getObject("XY_Plane036"), [""])
sketch37.MapMode = "FlatFace"
sketch37.addGeometry(Part.Circle(App.Vector(7.5, -4.5, 0), App.Vector(0, 0, 1), 0.5), False)
sketch37.addConstraint([
    Sketcher.Constraint("Diameter", 0, 1.0),
    Sketcher.Constraint("DistanceX", -1, 1, 0, 3, 7.5),
    Sketcher.Constraint("DistanceY", 0, 3, -1, 1, 4.5),
])
pad37 = body37.newObject("PartDesign::Pad", "Pad036")
pad37.Profile = sketch37
pad37.Length = 0.4
body38 = doc.addObject("PartDesign::Body", "Body037")

sketch38 = body38.newObject("Sketcher::SketchObject", "Sketch037")
sketch38.AttachmentSupport = (doc.getObject("XY_Plane037"), [""])
sketch38.MapMode = "FlatFace"
sketch38.addGeometry(Part.Circle(App.Vector(4.5, -1.5, 0), App.Vector(0, 0, 1), 0.5), False)
sketch38.addConstraint([
    Sketcher.Constraint("Diameter", 0, 1.0),
    Sketcher.Constraint("DistanceX", -1, 1, 0, 3, 4.5),
    Sketcher.Constraint("DistanceY", 0, 3, -1, 1, 1.5),
])
pad38 = body38.newObject("PartDesign::Pad", "Pad037")
pad38.Profile = sketch38
pad38.Length = 0.4
body39 = doc.addObject("PartDesign::Body", "Body038")

sketch39 = body39.newObject("Sketcher::SketchObject", "Sketch038")
sketch39.AttachmentSupport = (doc.getObject("XY_Plane038"), [""])
sketch39.MapMode = "FlatFace"
sketch39.addGeometry(Part.Circle(App.Vector(-7.5, 7.5, 0), App.Vector(0, 0, 1), 0.5), False)
sketch39.addConstraint([
    Sketcher.Constraint("Diameter", 0, 1.0),
    Sketcher.Constraint("DistanceX", 0, 3, -1, 1, 7.5),
    Sketcher.Constraint("DistanceY", -1, 1, 0, 3, 7.5),
])
pad39 = body39.newObject("PartDesign::Pad", "Pad038")
pad39.Profile = sketch39
pad39.Length = 0.4
body40 = doc.addObject("PartDesign::Body", "Body039")

sketch40 = body40.newObject("Sketcher::SketchObject", "Sketch039")
sketch40.AttachmentSupport = (doc.getObject("XY_Plane039"), [""])
sketch40.MapMode = "FlatFace"
sketch40.addGeometry(Part.Circle(App.Vector(-4.5, 7.5, 0), App.Vector(0, 0, 1), 0.5), False)
sketch40.addConstraint([
    Sketcher.Constraint("Diameter", 0, 1.0),
    Sketcher.Constraint("DistanceX", 0, 3, -1, 1, 4.5),
    Sketcher.Constraint("DistanceY", -1, 1, 0, 3, 7.5),
])
pad40 = body40.newObject("PartDesign::Pad", "Pad039")
pad40.Profile = sketch40
pad40.Length = 0.4
body41 = doc.addObject("PartDesign::Body", "Body040")

sketch41 = body41.newObject("Sketcher::SketchObject", "Sketch040")
sketch41.AttachmentSupport = (doc.getObject("XY_Plane040"), [""])
sketch41.MapMode = "FlatFace"
sketch41.addGeometry(Part.Circle(App.Vector(4.5, 4.5, 0), App.Vector(0, 0, 1), 0.5), False)
sketch41.addConstraint([
    Sketcher.Constraint("Diameter", 0, 1.0),
    Sketcher.Constraint("DistanceX", -1, 1, 0, 3, 4.5),
    Sketcher.Constraint("DistanceY", -1, 1, 0, 3, 4.5),
])
pad41 = body41.newObject("PartDesign::Pad", "Pad040")
pad41.Profile = sketch41
pad41.Length = 0.4
body42 = doc.addObject("PartDesign::Body", "Body041")

sketch42 = body42.newObject("Sketcher::SketchObject", "Sketch041")
sketch42.AttachmentSupport = (doc.getObject("XY_Plane041"), [""])
sketch42.MapMode = "FlatFace"
sketch42.addGeometry(Part.Circle(App.Vector(1.5, -4.5, 0), App.Vector(0, 0, 1), 0.5), False)
sketch42.addConstraint([
    Sketcher.Constraint("Diameter", 0, 1.0),
    Sketcher.Constraint("DistanceX", -1, 1, 0, 3, 1.5),
    Sketcher.Constraint("DistanceY", 0, 3, -1, 1, 4.5),
])
pad42 = body42.newObject("PartDesign::Pad", "Pad041")
pad42.Profile = sketch42
pad42.Length = 0.4

doc.recompute()
